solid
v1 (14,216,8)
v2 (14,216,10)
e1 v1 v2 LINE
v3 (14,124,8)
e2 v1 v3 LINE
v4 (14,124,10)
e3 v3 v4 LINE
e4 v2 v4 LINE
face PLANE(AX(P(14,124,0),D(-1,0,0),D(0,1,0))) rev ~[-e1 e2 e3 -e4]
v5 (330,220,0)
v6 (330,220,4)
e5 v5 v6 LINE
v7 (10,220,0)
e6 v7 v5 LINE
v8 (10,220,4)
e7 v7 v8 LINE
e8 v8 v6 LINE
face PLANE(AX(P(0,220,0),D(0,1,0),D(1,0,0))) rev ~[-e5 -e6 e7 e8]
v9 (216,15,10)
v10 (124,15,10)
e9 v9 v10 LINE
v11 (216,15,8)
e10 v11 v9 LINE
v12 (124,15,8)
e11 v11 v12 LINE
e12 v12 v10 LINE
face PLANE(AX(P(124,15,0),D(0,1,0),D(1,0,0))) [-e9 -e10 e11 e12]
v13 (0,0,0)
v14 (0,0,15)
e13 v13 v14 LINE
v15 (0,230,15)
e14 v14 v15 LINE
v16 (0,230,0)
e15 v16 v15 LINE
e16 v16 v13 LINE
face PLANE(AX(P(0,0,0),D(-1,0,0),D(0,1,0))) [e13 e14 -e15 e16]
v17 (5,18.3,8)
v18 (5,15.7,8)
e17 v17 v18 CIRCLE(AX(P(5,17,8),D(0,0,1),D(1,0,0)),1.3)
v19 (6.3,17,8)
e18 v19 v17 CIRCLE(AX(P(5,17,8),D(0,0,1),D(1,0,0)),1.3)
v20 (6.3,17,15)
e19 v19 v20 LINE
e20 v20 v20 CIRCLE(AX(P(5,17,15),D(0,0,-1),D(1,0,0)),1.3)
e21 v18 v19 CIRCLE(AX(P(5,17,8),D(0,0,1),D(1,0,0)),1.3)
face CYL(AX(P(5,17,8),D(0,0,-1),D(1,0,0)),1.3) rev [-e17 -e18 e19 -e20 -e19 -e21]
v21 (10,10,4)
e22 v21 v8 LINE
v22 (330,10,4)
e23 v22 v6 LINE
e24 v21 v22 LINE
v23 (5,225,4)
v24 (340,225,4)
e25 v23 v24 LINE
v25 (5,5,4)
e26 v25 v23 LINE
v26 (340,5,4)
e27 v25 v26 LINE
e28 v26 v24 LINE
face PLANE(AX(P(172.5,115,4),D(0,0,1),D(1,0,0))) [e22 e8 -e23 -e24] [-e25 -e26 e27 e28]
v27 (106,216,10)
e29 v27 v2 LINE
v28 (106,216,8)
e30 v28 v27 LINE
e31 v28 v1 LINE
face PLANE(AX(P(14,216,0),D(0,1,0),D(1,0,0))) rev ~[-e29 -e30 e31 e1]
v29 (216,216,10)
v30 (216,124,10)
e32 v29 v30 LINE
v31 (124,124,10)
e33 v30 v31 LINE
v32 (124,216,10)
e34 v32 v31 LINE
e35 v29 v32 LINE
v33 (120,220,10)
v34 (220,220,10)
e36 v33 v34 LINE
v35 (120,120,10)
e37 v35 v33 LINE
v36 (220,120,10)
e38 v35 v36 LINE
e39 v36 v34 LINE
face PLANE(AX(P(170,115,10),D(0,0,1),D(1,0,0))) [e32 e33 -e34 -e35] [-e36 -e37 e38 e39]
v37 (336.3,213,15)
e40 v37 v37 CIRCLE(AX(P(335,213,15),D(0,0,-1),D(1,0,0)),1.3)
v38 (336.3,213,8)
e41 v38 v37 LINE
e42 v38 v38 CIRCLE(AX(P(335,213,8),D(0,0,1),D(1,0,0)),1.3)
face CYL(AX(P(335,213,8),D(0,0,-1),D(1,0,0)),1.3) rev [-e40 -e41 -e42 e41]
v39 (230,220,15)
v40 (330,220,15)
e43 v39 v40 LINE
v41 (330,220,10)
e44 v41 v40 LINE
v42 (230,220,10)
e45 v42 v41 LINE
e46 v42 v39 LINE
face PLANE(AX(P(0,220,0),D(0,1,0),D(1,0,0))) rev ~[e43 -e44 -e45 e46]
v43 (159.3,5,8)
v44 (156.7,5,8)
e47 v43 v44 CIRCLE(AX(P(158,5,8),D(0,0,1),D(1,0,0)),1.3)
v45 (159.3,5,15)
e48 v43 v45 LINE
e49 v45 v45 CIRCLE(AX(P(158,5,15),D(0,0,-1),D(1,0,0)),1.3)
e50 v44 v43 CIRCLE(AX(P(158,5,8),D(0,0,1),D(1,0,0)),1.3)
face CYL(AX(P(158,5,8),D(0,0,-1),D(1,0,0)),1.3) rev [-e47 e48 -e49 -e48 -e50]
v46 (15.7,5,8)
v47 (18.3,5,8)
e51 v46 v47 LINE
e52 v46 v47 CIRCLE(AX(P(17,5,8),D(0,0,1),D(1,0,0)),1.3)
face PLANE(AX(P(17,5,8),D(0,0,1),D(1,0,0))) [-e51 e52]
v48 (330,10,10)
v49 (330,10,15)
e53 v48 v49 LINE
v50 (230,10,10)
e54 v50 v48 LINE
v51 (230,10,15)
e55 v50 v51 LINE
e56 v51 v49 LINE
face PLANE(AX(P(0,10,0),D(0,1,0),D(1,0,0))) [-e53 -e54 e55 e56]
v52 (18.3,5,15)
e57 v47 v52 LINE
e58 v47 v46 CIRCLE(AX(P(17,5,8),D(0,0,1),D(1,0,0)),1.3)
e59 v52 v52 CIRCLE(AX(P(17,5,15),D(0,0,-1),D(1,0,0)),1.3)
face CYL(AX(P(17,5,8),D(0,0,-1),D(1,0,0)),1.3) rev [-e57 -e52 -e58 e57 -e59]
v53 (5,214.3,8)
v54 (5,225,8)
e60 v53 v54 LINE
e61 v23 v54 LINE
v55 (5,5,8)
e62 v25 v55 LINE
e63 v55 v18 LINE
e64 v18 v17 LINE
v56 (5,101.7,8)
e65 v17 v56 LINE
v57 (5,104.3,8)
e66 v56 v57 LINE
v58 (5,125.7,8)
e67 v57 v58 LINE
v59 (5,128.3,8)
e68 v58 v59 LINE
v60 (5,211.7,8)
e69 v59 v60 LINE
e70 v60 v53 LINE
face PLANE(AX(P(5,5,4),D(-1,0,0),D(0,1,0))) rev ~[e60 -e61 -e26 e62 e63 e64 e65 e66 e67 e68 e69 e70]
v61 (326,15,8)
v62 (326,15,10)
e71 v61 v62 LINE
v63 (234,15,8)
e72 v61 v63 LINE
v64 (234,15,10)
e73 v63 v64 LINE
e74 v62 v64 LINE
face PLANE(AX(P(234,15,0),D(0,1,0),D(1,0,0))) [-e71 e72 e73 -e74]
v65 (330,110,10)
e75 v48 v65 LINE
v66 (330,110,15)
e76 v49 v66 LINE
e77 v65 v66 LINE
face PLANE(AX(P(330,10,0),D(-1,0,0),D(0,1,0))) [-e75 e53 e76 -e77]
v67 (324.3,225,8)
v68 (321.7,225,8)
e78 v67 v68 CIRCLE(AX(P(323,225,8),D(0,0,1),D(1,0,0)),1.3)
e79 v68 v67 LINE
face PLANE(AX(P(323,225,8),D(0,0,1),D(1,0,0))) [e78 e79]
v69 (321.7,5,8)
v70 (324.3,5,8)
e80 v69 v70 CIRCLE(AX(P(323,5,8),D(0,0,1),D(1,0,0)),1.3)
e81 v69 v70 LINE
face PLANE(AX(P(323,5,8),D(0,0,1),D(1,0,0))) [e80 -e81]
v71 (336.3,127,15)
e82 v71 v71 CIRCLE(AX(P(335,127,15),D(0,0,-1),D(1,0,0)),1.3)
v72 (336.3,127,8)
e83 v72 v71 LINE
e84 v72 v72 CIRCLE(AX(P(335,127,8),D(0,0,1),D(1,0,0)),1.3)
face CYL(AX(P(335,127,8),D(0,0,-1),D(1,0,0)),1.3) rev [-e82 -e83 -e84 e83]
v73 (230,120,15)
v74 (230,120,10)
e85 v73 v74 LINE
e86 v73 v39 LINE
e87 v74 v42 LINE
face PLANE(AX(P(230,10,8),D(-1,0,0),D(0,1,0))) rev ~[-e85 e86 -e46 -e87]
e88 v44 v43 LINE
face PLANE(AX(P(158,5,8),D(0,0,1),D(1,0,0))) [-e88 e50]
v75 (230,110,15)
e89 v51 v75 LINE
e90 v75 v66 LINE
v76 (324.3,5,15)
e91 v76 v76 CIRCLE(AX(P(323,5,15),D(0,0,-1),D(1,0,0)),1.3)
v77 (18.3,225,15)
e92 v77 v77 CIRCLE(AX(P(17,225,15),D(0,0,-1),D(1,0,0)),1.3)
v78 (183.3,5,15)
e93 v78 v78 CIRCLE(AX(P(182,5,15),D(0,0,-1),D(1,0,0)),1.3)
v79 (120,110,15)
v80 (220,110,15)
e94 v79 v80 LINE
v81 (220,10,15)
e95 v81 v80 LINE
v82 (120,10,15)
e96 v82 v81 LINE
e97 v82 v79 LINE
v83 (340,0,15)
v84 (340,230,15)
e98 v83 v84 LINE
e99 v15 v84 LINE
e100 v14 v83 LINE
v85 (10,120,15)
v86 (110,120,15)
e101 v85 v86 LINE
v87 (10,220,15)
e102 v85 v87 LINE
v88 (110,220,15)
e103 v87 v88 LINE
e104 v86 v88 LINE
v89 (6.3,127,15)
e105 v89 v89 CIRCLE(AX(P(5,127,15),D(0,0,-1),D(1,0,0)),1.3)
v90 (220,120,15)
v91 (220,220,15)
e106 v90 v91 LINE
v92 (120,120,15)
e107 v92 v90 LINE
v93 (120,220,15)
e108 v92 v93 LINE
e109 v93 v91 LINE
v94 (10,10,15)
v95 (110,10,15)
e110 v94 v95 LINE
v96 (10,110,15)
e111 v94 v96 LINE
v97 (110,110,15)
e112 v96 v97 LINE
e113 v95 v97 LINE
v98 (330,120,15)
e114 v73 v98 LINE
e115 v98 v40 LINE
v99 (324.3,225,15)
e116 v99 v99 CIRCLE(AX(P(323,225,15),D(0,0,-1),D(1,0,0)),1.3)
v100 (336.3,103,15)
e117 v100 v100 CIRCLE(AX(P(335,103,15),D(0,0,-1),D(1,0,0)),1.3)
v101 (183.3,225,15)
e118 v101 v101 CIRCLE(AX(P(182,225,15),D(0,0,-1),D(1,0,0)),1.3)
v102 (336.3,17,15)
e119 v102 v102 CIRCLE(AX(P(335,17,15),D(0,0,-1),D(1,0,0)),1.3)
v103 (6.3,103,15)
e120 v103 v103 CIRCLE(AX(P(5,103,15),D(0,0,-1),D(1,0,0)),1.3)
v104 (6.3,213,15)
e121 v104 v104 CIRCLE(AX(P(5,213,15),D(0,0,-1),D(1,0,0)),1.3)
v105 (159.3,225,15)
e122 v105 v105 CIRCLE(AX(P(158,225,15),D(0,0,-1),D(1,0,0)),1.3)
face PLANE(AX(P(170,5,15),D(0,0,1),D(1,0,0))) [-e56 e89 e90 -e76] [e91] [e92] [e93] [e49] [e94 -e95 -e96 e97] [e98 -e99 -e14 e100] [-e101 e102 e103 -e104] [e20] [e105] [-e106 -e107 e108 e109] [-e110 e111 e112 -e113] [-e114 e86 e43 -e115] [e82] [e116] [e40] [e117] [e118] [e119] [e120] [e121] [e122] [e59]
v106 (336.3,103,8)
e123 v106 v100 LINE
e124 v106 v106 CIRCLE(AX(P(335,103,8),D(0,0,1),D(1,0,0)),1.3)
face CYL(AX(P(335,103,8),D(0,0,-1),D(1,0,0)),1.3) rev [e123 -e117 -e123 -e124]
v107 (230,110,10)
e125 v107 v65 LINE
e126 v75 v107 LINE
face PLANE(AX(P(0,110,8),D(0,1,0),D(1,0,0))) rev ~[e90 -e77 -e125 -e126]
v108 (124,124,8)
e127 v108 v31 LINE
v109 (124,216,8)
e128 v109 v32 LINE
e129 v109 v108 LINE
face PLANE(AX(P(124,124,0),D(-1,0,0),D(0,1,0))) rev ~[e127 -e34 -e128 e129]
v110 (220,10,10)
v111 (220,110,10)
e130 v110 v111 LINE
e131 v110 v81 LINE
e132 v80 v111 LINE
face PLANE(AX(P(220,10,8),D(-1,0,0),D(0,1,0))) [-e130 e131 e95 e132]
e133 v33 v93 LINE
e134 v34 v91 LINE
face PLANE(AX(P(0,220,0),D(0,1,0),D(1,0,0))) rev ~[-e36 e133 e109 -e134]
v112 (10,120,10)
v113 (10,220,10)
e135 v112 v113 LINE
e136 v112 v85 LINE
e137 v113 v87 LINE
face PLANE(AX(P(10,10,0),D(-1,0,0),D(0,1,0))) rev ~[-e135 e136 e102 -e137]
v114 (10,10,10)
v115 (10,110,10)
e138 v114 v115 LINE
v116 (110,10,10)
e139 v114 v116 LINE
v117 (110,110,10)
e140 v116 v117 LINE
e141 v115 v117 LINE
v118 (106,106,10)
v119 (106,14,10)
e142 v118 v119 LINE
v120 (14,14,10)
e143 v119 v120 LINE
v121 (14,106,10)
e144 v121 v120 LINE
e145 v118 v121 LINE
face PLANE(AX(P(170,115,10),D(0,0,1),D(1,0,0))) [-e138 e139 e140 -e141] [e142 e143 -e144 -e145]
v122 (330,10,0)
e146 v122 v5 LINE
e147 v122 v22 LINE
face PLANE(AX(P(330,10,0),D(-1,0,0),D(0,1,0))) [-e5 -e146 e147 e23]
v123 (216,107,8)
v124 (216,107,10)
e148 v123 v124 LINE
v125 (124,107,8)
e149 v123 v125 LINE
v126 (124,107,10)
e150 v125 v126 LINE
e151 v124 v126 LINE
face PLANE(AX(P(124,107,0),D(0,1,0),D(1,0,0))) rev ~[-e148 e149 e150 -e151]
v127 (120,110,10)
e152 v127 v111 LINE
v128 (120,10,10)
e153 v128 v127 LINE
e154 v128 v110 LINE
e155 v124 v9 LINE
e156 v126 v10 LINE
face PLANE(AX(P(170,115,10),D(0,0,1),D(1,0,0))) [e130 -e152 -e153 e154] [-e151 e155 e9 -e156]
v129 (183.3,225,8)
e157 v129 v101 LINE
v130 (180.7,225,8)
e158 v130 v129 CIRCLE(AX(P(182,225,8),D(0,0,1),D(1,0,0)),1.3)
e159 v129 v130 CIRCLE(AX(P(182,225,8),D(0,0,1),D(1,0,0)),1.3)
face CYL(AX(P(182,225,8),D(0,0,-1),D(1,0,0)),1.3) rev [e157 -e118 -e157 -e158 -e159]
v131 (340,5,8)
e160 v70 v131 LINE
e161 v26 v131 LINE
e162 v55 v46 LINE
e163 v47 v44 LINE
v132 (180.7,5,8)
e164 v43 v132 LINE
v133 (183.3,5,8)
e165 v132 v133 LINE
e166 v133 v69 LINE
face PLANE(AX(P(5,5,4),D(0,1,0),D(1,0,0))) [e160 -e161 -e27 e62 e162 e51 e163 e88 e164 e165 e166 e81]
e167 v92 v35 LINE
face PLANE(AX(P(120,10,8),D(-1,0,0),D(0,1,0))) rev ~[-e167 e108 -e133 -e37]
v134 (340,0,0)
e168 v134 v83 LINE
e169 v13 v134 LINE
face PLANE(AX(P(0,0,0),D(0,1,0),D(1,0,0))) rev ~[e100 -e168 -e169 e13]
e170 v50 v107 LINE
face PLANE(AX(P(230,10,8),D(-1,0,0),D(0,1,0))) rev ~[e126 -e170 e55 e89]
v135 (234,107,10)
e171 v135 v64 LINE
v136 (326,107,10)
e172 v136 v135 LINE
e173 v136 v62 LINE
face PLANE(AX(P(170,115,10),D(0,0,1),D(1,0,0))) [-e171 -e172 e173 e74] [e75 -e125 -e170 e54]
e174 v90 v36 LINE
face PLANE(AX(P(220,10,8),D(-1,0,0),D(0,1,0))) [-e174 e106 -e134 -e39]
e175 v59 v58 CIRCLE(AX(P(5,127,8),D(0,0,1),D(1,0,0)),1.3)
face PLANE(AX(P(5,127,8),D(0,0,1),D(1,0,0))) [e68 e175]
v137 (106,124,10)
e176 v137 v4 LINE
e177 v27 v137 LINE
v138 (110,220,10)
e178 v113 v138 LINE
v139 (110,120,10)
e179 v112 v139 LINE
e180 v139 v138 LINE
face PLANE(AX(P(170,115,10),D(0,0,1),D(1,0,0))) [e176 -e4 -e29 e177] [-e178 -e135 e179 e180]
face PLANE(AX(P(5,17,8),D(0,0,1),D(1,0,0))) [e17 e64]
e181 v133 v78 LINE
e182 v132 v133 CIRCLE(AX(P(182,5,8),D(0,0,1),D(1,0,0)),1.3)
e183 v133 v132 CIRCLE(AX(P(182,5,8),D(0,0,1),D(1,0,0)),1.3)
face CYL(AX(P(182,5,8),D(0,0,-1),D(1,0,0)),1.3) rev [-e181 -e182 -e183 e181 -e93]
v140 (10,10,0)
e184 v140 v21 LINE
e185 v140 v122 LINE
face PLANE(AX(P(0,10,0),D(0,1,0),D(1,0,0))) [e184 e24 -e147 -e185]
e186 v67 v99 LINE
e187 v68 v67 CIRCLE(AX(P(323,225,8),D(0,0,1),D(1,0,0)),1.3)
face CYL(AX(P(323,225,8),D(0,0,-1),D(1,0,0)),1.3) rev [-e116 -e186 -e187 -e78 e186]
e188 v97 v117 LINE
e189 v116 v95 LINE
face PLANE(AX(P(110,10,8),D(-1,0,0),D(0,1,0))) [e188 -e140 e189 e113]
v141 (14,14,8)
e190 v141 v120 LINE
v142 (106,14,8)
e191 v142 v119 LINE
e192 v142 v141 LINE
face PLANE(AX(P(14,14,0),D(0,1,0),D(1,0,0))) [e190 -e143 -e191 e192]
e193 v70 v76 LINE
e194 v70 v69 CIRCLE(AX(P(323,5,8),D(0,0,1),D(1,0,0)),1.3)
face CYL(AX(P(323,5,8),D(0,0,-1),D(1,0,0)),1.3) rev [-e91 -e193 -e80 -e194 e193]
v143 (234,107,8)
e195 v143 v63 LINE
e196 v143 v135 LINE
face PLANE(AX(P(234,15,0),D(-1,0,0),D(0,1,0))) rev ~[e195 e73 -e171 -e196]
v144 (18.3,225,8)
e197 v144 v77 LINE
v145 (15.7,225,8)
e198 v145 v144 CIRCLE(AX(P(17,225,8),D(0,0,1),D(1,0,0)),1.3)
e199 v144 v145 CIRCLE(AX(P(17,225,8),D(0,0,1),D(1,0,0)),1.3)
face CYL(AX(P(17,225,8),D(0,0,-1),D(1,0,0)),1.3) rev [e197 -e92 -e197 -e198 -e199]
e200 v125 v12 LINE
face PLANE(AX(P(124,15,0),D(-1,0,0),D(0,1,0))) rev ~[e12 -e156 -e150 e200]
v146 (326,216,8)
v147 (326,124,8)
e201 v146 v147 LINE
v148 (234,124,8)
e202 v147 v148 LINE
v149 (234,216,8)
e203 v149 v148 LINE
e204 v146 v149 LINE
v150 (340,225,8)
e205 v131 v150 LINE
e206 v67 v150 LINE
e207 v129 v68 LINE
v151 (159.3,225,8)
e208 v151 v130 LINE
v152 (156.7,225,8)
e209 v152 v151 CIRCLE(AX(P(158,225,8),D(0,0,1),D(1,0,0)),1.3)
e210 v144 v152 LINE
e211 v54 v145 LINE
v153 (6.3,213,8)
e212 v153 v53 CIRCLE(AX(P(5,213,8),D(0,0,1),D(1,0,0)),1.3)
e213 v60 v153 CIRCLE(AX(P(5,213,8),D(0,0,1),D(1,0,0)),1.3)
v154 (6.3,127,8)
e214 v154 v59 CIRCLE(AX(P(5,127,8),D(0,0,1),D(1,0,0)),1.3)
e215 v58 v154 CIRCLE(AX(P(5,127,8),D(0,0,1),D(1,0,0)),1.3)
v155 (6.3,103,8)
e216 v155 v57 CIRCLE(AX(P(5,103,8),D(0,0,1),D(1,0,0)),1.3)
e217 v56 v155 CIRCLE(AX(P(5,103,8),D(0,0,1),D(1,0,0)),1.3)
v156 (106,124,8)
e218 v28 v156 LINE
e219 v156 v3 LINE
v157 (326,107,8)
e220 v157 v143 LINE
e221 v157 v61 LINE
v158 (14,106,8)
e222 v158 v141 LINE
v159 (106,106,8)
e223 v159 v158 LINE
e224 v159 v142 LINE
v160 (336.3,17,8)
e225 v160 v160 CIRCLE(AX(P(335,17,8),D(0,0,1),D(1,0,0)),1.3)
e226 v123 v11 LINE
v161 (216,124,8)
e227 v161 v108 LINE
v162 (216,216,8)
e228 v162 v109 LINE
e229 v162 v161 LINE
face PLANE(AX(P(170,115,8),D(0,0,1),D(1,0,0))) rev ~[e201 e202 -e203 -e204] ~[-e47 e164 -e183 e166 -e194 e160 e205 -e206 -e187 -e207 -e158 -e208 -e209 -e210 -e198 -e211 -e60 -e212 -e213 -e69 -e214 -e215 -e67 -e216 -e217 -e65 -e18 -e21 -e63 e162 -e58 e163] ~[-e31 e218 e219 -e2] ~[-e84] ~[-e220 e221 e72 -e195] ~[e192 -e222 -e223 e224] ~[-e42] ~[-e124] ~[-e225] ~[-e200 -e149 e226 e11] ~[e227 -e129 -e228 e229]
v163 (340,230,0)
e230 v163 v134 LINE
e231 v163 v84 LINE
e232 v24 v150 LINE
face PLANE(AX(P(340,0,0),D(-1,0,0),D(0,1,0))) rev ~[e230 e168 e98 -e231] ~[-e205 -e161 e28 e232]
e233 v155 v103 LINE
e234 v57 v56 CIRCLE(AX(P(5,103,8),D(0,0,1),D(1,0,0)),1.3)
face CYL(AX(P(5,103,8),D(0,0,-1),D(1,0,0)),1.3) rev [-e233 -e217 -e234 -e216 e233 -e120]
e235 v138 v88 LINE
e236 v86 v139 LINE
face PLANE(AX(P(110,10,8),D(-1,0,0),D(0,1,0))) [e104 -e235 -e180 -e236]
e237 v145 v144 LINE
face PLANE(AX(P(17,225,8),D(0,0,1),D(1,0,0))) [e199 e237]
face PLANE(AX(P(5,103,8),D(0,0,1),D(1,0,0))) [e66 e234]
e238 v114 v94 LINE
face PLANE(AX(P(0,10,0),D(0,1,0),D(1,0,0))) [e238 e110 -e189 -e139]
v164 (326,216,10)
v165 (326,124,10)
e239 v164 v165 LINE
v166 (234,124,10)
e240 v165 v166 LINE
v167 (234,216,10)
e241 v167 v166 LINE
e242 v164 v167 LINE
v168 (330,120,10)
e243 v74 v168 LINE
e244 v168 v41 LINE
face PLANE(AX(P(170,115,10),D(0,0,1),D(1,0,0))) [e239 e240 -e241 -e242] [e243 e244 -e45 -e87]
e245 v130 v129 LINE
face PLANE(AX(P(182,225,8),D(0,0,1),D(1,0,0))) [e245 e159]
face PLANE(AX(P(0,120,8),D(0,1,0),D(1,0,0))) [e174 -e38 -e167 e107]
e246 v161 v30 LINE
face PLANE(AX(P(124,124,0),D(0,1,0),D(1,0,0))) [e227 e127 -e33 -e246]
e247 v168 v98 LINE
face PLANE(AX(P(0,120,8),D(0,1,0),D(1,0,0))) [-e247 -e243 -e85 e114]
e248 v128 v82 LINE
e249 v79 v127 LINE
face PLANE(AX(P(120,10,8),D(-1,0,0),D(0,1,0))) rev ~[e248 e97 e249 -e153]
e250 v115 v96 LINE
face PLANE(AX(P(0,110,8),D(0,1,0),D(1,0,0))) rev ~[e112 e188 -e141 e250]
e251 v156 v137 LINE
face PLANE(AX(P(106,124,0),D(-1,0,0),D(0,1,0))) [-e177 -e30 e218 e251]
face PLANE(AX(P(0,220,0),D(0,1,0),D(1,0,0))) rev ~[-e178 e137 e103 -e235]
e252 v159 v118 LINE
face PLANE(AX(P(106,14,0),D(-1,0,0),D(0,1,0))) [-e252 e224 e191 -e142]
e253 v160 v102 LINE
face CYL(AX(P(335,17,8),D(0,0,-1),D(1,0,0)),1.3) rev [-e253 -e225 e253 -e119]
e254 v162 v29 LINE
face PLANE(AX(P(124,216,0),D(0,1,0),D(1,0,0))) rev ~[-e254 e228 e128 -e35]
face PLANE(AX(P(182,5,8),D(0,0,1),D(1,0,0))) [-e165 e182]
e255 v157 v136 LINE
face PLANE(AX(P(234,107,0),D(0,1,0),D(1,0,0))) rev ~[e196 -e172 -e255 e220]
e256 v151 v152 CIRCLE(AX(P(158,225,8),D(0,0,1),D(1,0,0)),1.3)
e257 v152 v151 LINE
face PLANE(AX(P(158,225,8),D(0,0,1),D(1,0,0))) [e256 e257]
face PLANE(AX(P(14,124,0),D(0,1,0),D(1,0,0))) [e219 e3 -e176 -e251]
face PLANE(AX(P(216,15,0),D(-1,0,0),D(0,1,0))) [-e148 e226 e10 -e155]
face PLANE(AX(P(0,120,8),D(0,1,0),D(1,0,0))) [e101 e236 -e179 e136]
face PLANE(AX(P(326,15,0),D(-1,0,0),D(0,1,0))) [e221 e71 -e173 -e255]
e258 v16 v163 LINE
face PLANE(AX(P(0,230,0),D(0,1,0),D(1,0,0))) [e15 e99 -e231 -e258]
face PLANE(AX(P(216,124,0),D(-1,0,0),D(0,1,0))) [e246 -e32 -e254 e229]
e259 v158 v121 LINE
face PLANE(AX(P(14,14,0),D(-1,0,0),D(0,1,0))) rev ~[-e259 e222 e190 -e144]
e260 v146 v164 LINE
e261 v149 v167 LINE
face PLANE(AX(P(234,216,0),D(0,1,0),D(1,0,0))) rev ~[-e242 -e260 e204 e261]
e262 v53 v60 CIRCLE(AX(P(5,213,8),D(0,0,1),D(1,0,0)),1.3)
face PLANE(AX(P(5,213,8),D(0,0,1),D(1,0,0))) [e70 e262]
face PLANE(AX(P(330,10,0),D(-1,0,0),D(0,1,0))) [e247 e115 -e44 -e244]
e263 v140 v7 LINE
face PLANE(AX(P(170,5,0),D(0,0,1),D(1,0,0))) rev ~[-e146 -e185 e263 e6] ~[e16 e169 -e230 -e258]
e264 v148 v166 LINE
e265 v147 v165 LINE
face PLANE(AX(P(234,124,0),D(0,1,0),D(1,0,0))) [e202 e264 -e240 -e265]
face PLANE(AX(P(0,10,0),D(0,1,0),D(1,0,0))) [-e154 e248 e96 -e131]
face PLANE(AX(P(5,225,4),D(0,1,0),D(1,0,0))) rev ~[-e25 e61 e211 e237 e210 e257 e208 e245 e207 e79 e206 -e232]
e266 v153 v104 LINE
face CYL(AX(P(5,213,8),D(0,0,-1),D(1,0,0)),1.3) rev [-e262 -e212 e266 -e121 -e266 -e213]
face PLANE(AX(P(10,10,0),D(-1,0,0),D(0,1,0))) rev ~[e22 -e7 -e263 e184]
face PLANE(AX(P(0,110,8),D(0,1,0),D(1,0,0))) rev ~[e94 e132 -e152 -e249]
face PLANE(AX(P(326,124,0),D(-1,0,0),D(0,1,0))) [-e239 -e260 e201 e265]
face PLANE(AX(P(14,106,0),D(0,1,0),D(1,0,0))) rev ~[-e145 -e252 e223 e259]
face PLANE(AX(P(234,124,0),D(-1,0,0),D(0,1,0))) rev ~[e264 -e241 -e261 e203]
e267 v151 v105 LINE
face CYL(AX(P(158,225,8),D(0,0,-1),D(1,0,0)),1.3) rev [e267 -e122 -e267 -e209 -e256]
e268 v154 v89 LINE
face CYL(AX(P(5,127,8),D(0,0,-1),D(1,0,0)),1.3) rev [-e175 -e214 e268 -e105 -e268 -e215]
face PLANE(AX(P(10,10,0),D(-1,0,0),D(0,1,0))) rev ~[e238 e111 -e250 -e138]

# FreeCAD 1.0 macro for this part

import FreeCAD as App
import Part
import Sketcher

V = App.Vector


def add_polygon(sketch, points):
    """Adds a closed chain of lines whose ends are joined by coincident constraints."""
    first, n = sketch.GeometryCount, len(points)
    for a, b in zip(points, points[1:] + points[:1]):
        sketch.addGeometry(Part.LineSegment(App.Vector(*a, 0), App.Vector(*b, 0)), False)
    for i in range(n):
        sketch.addConstraint(Sketcher.Constraint("Coincident", first + i, 2, first + (i + 1) % n, 1))

doc = App.newDocument("Part")
body = doc.addObject("PartDesign::Body", "Body")

sketch1 = body.newObject("Sketcher::SketchObject", "Sketch")
sketch1.AttachmentSupport = (doc.getObject("XY_Plane"), [""])
sketch1.MapMode = "FlatFace"
sketch1.AttachmentOffset = App.Placement(V(0, 0, 8), App.Rotation())
sketch1.addGeometry(Part.Circle(V(5, 103, 0), V(0, 0, 1), 1.3), False)
sketch1.addConstraint([
    Sketcher.Constraint("Diameter", 0, 2.6),
    Sketcher.Constraint("DistanceX", -1, 1, 0, 3, 5.0),
    Sketcher.Constraint("DistanceY", -1, 1, 0, 3, 103.0),
])
pad1 = body.newObject("PartDesign::Pad", "Pad")
pad1.Profile = sketch1
pad1.Length = 146
body2 = doc.addObject("PartDesign::Body", "Body001")

sketch2 = body2.newObject("Sketcher::SketchObject", "Sketch001")
sketch2.AttachmentSupport = (doc.getObject("XY_Plane001"), [""])
sketch2.MapMode = "FlatFace"
sketch2.AttachmentOffset = App.Placement(V(0, 0, 8), App.Rotation())
sketch2.addGeometry(Part.Circle(V(5, 127, 0), V(0, 0, 1), 1.3), False)
sketch2.addConstraint([
    Sketcher.Constraint("Diameter", 0, 2.6),
    Sketcher.Constraint("DistanceX", -1, 1, 0, 3, 5.0),
    Sketcher.Constraint("DistanceY", -1, 1, 0, 3, 127.0),
])
pad2 = body2.newObject("PartDesign::Pad", "Pad001")
pad2.Profile = sketch2
pad2.Length = 146
body3 = doc.addObject("PartDesign::Body", "Body002")

sketch3 = body3.newObject("Sketcher::SketchObject", "Sketch002")
sketch3.AttachmentSupport = (doc.getObject("XY_Plane002"), [""])
sketch3.MapMode = "FlatFace"
sketch3.AttachmentOffset = App.Placement(V(0, 0, 8), App.Rotation())
sketch3.addGeometry(Part.Circle(V(5, 213, 0), V(0, 0, 1), 1.3), False)
sketch3.addConstraint([
    Sketcher.Constraint("Diameter", 0, 2.6),
    Sketcher.Constraint("DistanceX", -1, 1, 0, 3, 5.0),
    Sketcher.Constraint("DistanceY", -1, 1, 0, 3, 213.0),
])
pad3 = body3.newObject("PartDesign::Pad", "Pad002")
pad3.Profile = sketch3
pad3.Length = 146
body4 = doc.addObject("PartDesign::Body", "Body003")

sketch4 = body4.newObject("Sketcher::SketchObject", "Sketch003")
sketch4.AttachmentSupport = (doc.getObject("XY_Plane003"), [""])
sketch4.MapMode = "FlatFace"
sketch4.AttachmentOffset = App.Placement(V(0, 0, 8), App.Rotation())
sketch4.addGeometry(Part.Circle(V(17, 225, 0), V(0, 0, 1), 1.3), False)
sketch4.addConstraint([
    Sketcher.Constraint("Diameter", 0, 2.6),
    Sketcher.Constraint("DistanceX", -1, 1, 0, 3, 17.0),
    Sketcher.Constraint("DistanceY", -1, 1, 0, 3, 225.0),
])
pad4 = body4.newObject("PartDesign::Pad", "Pad003")
pad4.Profile = sketch4
pad4.Length = 146
body5 = doc.addObject("PartDesign::Body", "Body004")

sketch5 = body5.newObject("Sketcher::SketchObject", "Sketch004")
sketch5.AttachmentSupport = (doc.getObject("XY_Plane004"), [""])
sketch5.MapMode = "FlatFace"
sketch5.AttachmentOffset = App.Placement(V(0, 0, 8), App.Rotation())
sketch5.addGeometry(Part.Circle(V(158, 225, 0), V(0, 0, 1), 1.3), False)
sketch5.addConstraint([
    Sketcher.Constraint("Diameter", 0, 2.6),
    Sketcher.Constraint("DistanceX", -1, 1, 0, 3, 158.0),
    Sketcher.Constraint("DistanceY", -1, 1, 0, 3, 225.0),
])
pad5 = body5.newObject("PartDesign::Pad", "Pad004")
pad5.Profile = sketch5
pad5.Length = 146
body6 = doc.addObject("PartDesign::Body", "Body005")

sketch6 = body6.newObject("Sketcher::SketchObject", "Sketch005")
sketch6.AttachmentSupport = (doc.getObject("XY_Plane005"), [""])
sketch6.MapMode = "FlatFace"
sketch6.AttachmentOffset = App.Placement(V(0, 0, 8), App.Rotation())
sketch6.addGeometry(Part.Circle(V(182, 225, 0), V(0, 0, 1), 1.3), False)
sketch6.addConstraint([
    Sketcher.Constraint("Diameter", 0, 2.6),
    Sketcher.Constraint("DistanceX", -1, 1, 0, 3, 182.0),
    Sketcher.Constraint("DistanceY", -1, 1, 0, 3, 225.0),
])
pad6 = body6.newObject("PartDesign::Pad", "Pad005")
pad6.Profile = sketch6
pad6.Length = 146
body7 = doc.addObject("PartDesign::Body", "Body006")

sketch7 = body7.newObject("Sketcher::SketchObject", "Sketch006")
sketch7.AttachmentSupport = (doc.getObject("XY_Plane006"), [""])
sketch7.MapMode = "FlatFace"
sketch7.AttachmentOffset = App.Placement(V(0, 0, 8), App.Rotation())
sketch7.addGeometry(Part.Circle(V(323, 225, 0), V(0, 0, 1), 1.3), False)
sketch7.addConstraint([
    Sketcher.Constraint("Diameter", 0, 2.6),
    Sketcher.Constraint("DistanceX", -1, 1, 0, 3, 323.0),
    Sketcher.Constraint("DistanceY", -1, 1, 0, 3, 225.0),
])
pad7 = body7.newObject("PartDesign::Pad", "Pad006")
pad7.Profile = sketch7
pad7.Length = 146
body8 = doc.addObject("PartDesign::Body", "Body007")

sketch8 = body8.newObject("Sketcher::SketchObject", "Sketch007")
sketch8.AttachmentSupport = (doc.getObject("XY_Plane007"), [""])
sketch8.MapMode = "FlatFace"
sketch8.AttachmentOffset = App.Placement(V(0, 0, 8), App.Rotation())
sketch8.addGeometry(Part.Circle(V(335, 213, 0), V(0, 0, 1), 1.3), False)
sketch8.addConstraint([
    Sketcher.Constraint("Diameter", 0, 2.6),
    Sketcher.Constraint("DistanceX", -1, 1, 0, 3, 335.0),
    Sketcher.Constraint("DistanceY", -1, 1, 0, 3, 213.0),
])
pad8 = body8.newObject("PartDesign::Pad", "Pad007")
pad8.Profile = sketch8
pad8.Length = 146
body9 = doc.addObject("PartDesign::Body", "Body008")

sketch9 = body9.newObject("Sketcher::SketchObject", "Sketch008")
sketch9.AttachmentSupport = (doc.getObject("XY_Plane008"), [""])
sketch9.MapMode = "FlatFace"
sketch9.AttachmentOffset = App.Placement(V(0, 0, 8), App.Rotation())
sketch9.addGeometry(Part.Circle(V(335, 127, 0), V(0, 0, 1), 1.3), False)
sketch9.addConstraint([
    Sketcher.Constraint("Diameter", 0, 2.6),
    Sketcher.Constraint("DistanceX", -1, 1, 0, 3, 335.0),
    Sketcher.Constraint("DistanceY", -1, 1, 0, 3, 127.0),
])
pad9 = body9.newObject("PartDesign::Pad", "Pad008")
pad9.Profile = sketch9
pad9.Length = 146
body10 = doc.addObject("PartDesign::Body", "Body009")

sketch10 = body10.newObject("Sketcher::SketchObject", "Sketch009")
sketch10.AttachmentSupport = (doc.getObject("XY_Plane009"), [""])
sketch10.MapMode = "FlatFace"
sketch10.AttachmentOffset = App.Placement(V(0, 0, 8), App.Rotation())
sketch10.addGeometry(Part.Circle(V(335, 103, 0), V(0, 0, 1), 1.3), False)
sketch10.addConstraint([
    Sketcher.Constraint("Diameter", 0, 2.6),
    Sketcher.Constraint("DistanceX", -1, 1, 0, 3, 335.0),
    Sketcher.Constraint("DistanceY", -1, 1, 0, 3, 103.0),
])
pad10 = body10.newObject("PartDesign::Pad", "Pad009")
pad10.Profile = sketch10
pad10.Length = 146
body11 = doc.addObject("PartDesign::Body", "Body010")

sketch11 = body11.newObject("Sketcher::SketchObject", "Sketch010")
sketch11.AttachmentSupport = (doc.getObject("XY_Plane010"), [""])
sketch11.MapMode = "FlatFace"
sketch11.AttachmentOffset = App.Placement(V(0, 0, 8), App.Rotation())
sketch11.addGeometry(Part.Circle(V(335, 17, 0), V(0, 0, 1), 1.3), False)
sketch11.addConstraint([
    Sketcher.Constraint("Diameter", 0, 2.6),
    Sketcher.Constraint("DistanceX", -1, 1, 0, 3, 335.0),
    Sketcher.Constraint("DistanceY", -1, 1, 0, 3, 17.0),
])
pad11 = body11.newObject("PartDesign::Pad", "Pad010")
pad11.Profile = sketch11
pad11.Length = 146
body12 = doc.addObject("PartDesign::Body", "Body011")

sketch12 = body12.newObject("Sketcher::SketchObject", "Sketch011")
sketch12.AttachmentSupport = (doc.getObject("XY_Plane011"), [""])
sketch12.MapMode = "FlatFace"
sketch12.AttachmentOffset = App.Placement(V(0, 0, 8), App.Rotation())
sketch12.addGeometry(Part.Circle(V(323, 5, 0), V(0, 0, 1), 1.3), False)
sketch12.addConstraint([
    Sketcher.Constraint("Diameter", 0, 2.6),
    Sketcher.Constraint("DistanceX", -1, 1, 0, 3, 323.0),
    Sketcher.Constraint("DistanceY", -1, 1, 0, 3, 5.0),
])
pad12 = body12.newObject("PartDesign::Pad", "Pad011")
pad12.Profile = sketch12
pad12.Length = 146
body13 = doc.addObject("PartDesign::Body", "Body012")

sketch13 = body13.newObject("Sketcher::SketchObject", "Sketch012")
sketch13.AttachmentSupport = (doc.getObject("XY_Plane012"), [""])
sketch13.MapMode = "FlatFace"
sketch13.AttachmentOffset = App.Placement(V(0, 0, 8), App.Rotation())
sketch13.addGeometry(Part.Circle(V(182, 5, 0), V(0, 0, 1), 1.3), False)
sketch13.addConstraint([
    Sketcher.Constraint("Diameter", 0, 2.6),
    Sketcher.Constraint("DistanceX", -1, 1, 0, 3, 182.0),
    Sketcher.Constraint("DistanceY", -1, 1, 0, 3, 5.0),
])
pad13 = body13.newObject("PartDesign::Pad", "Pad012")
pad13.Profile = sketch13
pad13.Length = 146
body14 = doc.addObject("PartDesign::Body", "Body013")

sketch14 = body14.newObject("Sketcher::SketchObject", "Sketch013")
sketch14.AttachmentSupport = (doc.getObject("XY_Plane013"), [""])
sketch14.MapMode = "FlatFace"
sketch14.AttachmentOffset = App.Placement(V(0, 0, 8), App.Rotation())
sketch14.addGeometry(Part.Circle(V(158, 5, 0), V(0, 0, 1), 1.3), False)
sketch14.addConstraint([
    Sketcher.Constraint("Diameter", 0, 2.6),
    Sketcher.Constraint("DistanceX", -1, 1, 0, 3, 158.0),
    Sketcher.Constraint("DistanceY", -1, 1, 0, 3, 5.0),
])
pad14 = body14.newObject("PartDesign::Pad", "Pad013")
pad14.Profile = sketch14
pad14.Length = 146
body15 = doc.addObject("PartDesign::Body", "Body014")

sketch15 = body15.newObject("Sketcher::SketchObject", "Sketch014")
sketch15.AttachmentSupport = (doc.getObject("XY_Plane014"), [""])
sketch15.MapMode = "FlatFace"
sketch15.AttachmentOffset = App.Placement(V(0, 0, 8), App.Rotation())
sketch15.addGeometry(Part.Circle(V(17, 5, 0), V(0, 0, 1), 1.3), False)
sketch15.addConstraint([
    Sketcher.Constraint("Diameter", 0, 2.6),
    Sketcher.Constraint("DistanceX", -1, 1, 0, 3, 17.0),
    Sketcher.Constraint("DistanceY", -1, 1, 0, 3, 5.0),
])
pad15 = body15.newObject("PartDesign::Pad", "Pad014")
pad15.Profile = sketch15
pad15.Length = 146
body16 = doc.addObject("PartDesign::Body", "Body015")

sketch16 = body16.newObject("Sketcher::SketchObject", "Sketch015")
sketch16.AttachmentSupport = (doc.getObject("XY_Plane015"), [""])
sketch16.MapMode = "FlatFace"
sketch16.AttachmentOffset = App.Placement(V(0, 0, 8), App.Rotation())
sketch16.addGeometry(Part.Circle(V(5, 17, 0), V(0, 0, 1), 1.3), False)
sketch16.addConstraint([
    Sketcher.Constraint("Diameter", 0, 2.6),
    Sketcher.Constraint("DistanceX", -1, 1, 0, 3, 5.0),
    Sketcher.Constraint("DistanceY", -1, 1, 0, 3, 17.0),
])
pad16 = body16.newObject("PartDesign::Pad", "Pad015")
pad16.Profile = sketch16
pad16.Length = 146
body17 = doc.addObject("PartDesign::Body", "Body016")

sketch17 = body17.newObject("Sketcher::SketchObject", "Sketch016")
sketch17.AttachmentSupport = (doc.getObject("XY_Plane016"), [""])
sketch17.MapMode = "FlatFace"
add_polygon(sketch17, [(14, 216), (14, 124), (106, 124), (106, 216)])
sketch17.addConstraint([
    Sketcher.Constraint("Vertical", 0),
    Sketcher.Constraint("Horizontal", 1),
    Sketcher.Constraint("Vertical", 2),
    Sketcher.Constraint("Horizontal", 3),
    Sketcher.Constraint("Equal", 3, 0),
    Sketcher.Constraint("DistanceX", 1, 1, 1, 2, 92.0),
    Sketcher.Constraint("DistanceX", -1, 1, 0, 2, 14.0),
    Sketcher.Constraint("DistanceY", -1, 1, 0, 2, 124.0),
])
pad17 = body17.newObject("PartDesign::Pad", "Pad016")
pad17.Profile = sketch17
pad17.Length = 24
body18 = doc.addObject("PartDesign::Body", "Body017")

sketch18 = body18.newObject("Sketcher::SketchObject", "Sketch017")
sketch18.AttachmentSupport = (doc.getObject("XY_Plane017"), [""])
sketch18.MapMode = "FlatFace"
add_polygon(sketch18, [(124, 216), (124, 124), (216, 124), (216, 216)])
sketch18.addConstraint([
    Sketcher.Constraint("Vertical", 0),
    Sketcher.Constraint("Horizontal", 1),
    Sketcher.Constraint("Vertical", 2),
    Sketcher.Constraint("Horizontal", 3),
    Sketcher.Constraint("Equal", 3, 0),
    Sketcher.Constraint("DistanceX", 1, 1, 1, 2, 92.0),
    Sketcher.Constraint("DistanceX", -1, 1, 0, 2, 124.0),
    Sketcher.Constraint("DistanceY", -1, 1, 0, 2, 124.0),
])
pad18 = body18.newObject("PartDesign::Pad", "Pad017")
pad18.Profile = sketch18
pad18.Length = 24
body19 = doc.addObject("PartDesign::Body", "Body018")

sketch19 = body19.newObject("Sketcher::SketchObject", "Sketch018")
sketch19.AttachmentSupport = (doc.getObject("XY_Plane018"), [""])
sketch19.MapMode = "FlatFace"
add_polygon(sketch19, [(234, 216), (234, 124), (326, 124), (326, 216)])
sketch19.addConstraint([
    Sketcher.Constraint("Vertical", 0),
    Sketcher.Constraint("Horizontal", 1),
    Sketcher.Constraint("Vertical", 2),
    Sketcher.Constraint("Horizontal", 3),
    Sketcher.Constraint("Equal", 3, 0),
    Sketcher.Constraint("DistanceX", 1, 1, 1, 2, 92.0),
    Sketcher.Constraint("DistanceX", -1, 1, 0, 2, 234.0),
    Sketcher.Constraint("DistanceY", -1, 1, 0, 2, 124.0),
])
pad19 = body19.newObject("PartDesign::Pad", "Pad018")
pad19.Profile = sketch19
pad19.Length = 24
body20 = doc.addObject("PartDesign::Body", "Body019")

sketch20 = body20.newObject("Sketcher::SketchObject", "Sketch019")
sketch20.AttachmentSupport = (doc.getObject("XY_Plane019"), [""])
sketch20.MapMode = "FlatFace"
add_polygon(sketch20, [(234, 107), (234, 15), (326, 15), (326, 107)])
sketch20.addConstraint([
    Sketcher.Constraint("Vertical", 0),
    Sketcher.Constraint("Horizontal", 1),
    Sketcher.Constraint("Vertical", 2),
    Sketcher.Constraint("Horizontal", 3),
    Sketcher.Constraint("Equal", 3, 0),
    Sketcher.Constraint("DistanceX", 1, 1, 1, 2, 92.0),
    Sketcher.Constraint("DistanceX", -1, 1, 0, 2, 234.0),
    Sketcher.Constraint("DistanceY", -1, 1, 0, 2, 15.0),
])
pad20 = body20.newObject("PartDesign::Pad", "Pad019")
pad20.Profile = sketch20
pad20.Length = 24
body21 = doc.addObject("PartDesign::Body", "Body020")

sketch21 = body21.newObject("Sketcher::SketchObject", "Sketch020")
sketch21.AttachmentSupport = (doc.getObject("XY_Plane020"), [""])
sketch21.MapMode = "FlatFace"
add_polygon(sketch21, [(124, 107), (124, 15), (216, 15), (216, 107)])
sketch21.addConstraint([
    Sketcher.Constraint("Vertical", 0),
    Sketcher.Constraint("Horizontal", 1),
    Sketcher.Constraint("Vertical", 2),
    Sketcher.Constraint("Horizontal", 3),
    Sketcher.Constraint("Equal", 3, 0),
    Sketcher.Constraint("DistanceX", 1, 1, 1, 2, 92.0),
    Sketcher.Constraint("DistanceX", -1, 1, 0, 2, 124.0),
    Sketcher.Constraint("DistanceY", -1, 1, 0, 2, 15.0),
])
pad21 = body21.newObject("PartDesign::Pad", "Pad020")
pad21.Profile = sketch21
pad21.Length = 24
body22 = doc.addObject("PartDesign::Body", "Body021")

sketch22 = body22.newObject("Sketcher::SketchObject", "Sketch021")
sketch22.AttachmentSupport = (doc.getObject("XY_Plane021"), [""])
sketch22.MapMode = "FlatFace"
add_polygon(sketch22, [(14, 106), (14, 14), (106, 14), (106, 106)])
sketch22.addConstraint([
    Sketcher.Constraint("Vertical", 0),
    Sketcher.Constraint("Horizontal", 1),
    Sketcher.Constraint("Vertical", 2),
    Sketcher.Constraint("Horizontal", 3),
    Sketcher.Constraint("Equal", 3, 0),
    Sketcher.Constraint("DistanceX", 1, 1, 1, 2, 92.0),
    Sketcher.Constraint("DistanceX", -1, 1, 0, 2, 14.0),
    Sketcher.Constraint("DistanceY", -1, 1, 0, 2, 14.0),
])
pad22 = body22.newObject("PartDesign::Pad", "Pad021")
pad22.Profile = sketch22
pad22.Length = 24
body23 = doc.addObject("PartDesign::Body", "Body022")

sketch23 = body23.newObject("Sketcher::SketchObject", "Sketch022")
sketch23.AttachmentSupport = (doc.getObject("XY_Plane022"), [""])
sketch23.MapMode = "FlatFace"
sketch23.AttachmentOffset = App.Placement(V(0, 0, 8), App.Rotation())
add_polygon(sketch23, [(10, 220), (10, 10), (330, 10), (330, 220)])
sketch23.addConstraint([
    Sketcher.Constraint("Vertical", 0),
    Sketcher.Constraint("Horizontal", 1),
    Sketcher.Constraint("Vertical", 2),
    Sketcher.Constraint("Horizontal", 3),
    Sketcher.Constraint("DistanceX", 1, 1, 1, 2, 320.0),
    Sketcher.Constraint("DistanceY", 0, 2, 0, 1, 210.0),
    Sketcher.Constraint("DistanceX", -1, 1, 0, 2, 10.0),
    Sketcher.Constraint("DistanceY", -1, 1, 0, 2, 10.0),
])
pad23 = body23.newObject("PartDesign::Pad", "Pad022")
pad23.Profile = sketch23
pad23.Length = 2
body24 = doc.addObject("PartDesign::Body", "Body023")

sketch24 = body24.newObject("Sketcher::SketchObject", "Sketch023")
sketch24.AttachmentSupport = (doc.getObject("XY_Plane023"), [""])
sketch24.MapMode = "FlatFace"
sketch24.AttachmentOffset = App.Placement(V(0, 0, 4), App.Rotation())
add_polygon(sketch24, [(5, 225), (5, 5), (340, 5), (340, 225)])
sketch24.addConstraint([
    Sketcher.Constraint("Vertical", 0),
    Sketcher.Constraint("Horizontal", 1),
    Sketcher.Constraint("Vertical", 2),
    Sketcher.Constraint("Horizontal", 3),
    Sketcher.Constraint("DistanceX", 1, 1, 1, 2, 335.0),
    Sketcher.Constraint("DistanceY", 0, 2, 0, 1, 220.0),
    Sketcher.Constraint("DistanceX", -1, 1, 0, 2, 5.0),
    Sketcher.Constraint("DistanceY", -1, 1, 0, 2, 5.0),
])
pad24 = body24.newObject("PartDesign::Pad", "Pad023")
pad24.Profile = sketch24
pad24.Length = 4
body25 = doc.addObject("PartDesign::Body", "Body024")

sketch25 = body25.newObject("Sketcher::SketchObject", "Sketch024")
sketch25.AttachmentSupport = (doc.getObject("XY_Plane024"), [""])
sketch25.MapMode = "FlatFace"
sketch25.AttachmentOffset = App.Placement(V(0, 0, 8), App.Rotation())
add_polygon(sketch25, [(220, 220), (220, 10), (230, 10), (230, 220)])
sketch25.addConstraint([
    Sketcher.Constraint("Vertical", 0),
    Sketcher.Constraint("Horizontal", 1),
    Sketcher.Constraint("Vertical", 2),
    Sketcher.Constraint("Horizontal", 3),
    Sketcher.Constraint("DistanceX", 1, 1, 1, 2, 10.0),
    Sketcher.Constraint("DistanceY", 0, 2, 0, 1, 210.0),
    Sketcher.Constraint("DistanceX", -1, 1, 0, 2, 220.0),
    Sketcher.Constraint("DistanceY", -1, 1, 0, 2, 10.0),
])
pad25 = body25.newObject("PartDesign::Pad", "Pad024")
pad25.Profile = sketch25
pad25.Length = 7
body26 = doc.addObject("PartDesign::Body", "Body025")

sketch26 = body26.newObject("Sketcher::SketchObject", "Sketch025")
sketch26.AttachmentSupport = (doc.getObject("XY_Plane025"), [""])
sketch26.MapMode = "FlatFace"
sketch26.AttachmentOffset = App.Placement(V(0, 0, 8), App.Rotation())
add_polygon(sketch26, [(0, 120), (0, 110), (340, 110), (340, 120)])
sketch26.addConstraint([
    Sketcher.Constraint("Vertical", 0),
    Sketcher.Constraint("Horizontal", 1),
    Sketcher.Constraint("Vertical", 2),
    Sketcher.Constraint("Horizontal", 3),
    Sketcher.Constraint("PointOnObject", 0, 2, -2),
    Sketcher.Constraint("DistanceX", 1, 1, 1, 2, 340.0),
    Sketcher.Constraint("DistanceY", 0, 2, 0, 1, 10.0),
    Sketcher.Constraint("DistanceY", -1, 1, 0, 2, 110.0),
])
pad26 = body26.newObject("PartDesign::Pad", "Pad025")
pad26.Profile = sketch26
pad26.Length = 7
body27 = doc.addObject("PartDesign::Body", "Body026")

sketch27 = body27.newObject("Sketcher::SketchObject", "Sketch026")
sketch27.AttachmentSupport = (doc.getObject("XY_Plane026"), [""])
sketch27.MapMode = "FlatFace"
add_polygon(sketch27, [(330, 220), (330, 10), (340, 10), (340, 220)])
sketch27.addConstraint([
    Sketcher.Constraint("Vertical", 0),
    Sketcher.Constraint("Horizontal", 1),
    Sketcher.Constraint("Vertical", 2),
    Sketcher.Constraint("Horizontal", 3),
    Sketcher.Constraint("DistanceX", 1, 1, 1, 2, 10.0),
    Sketcher.Constraint("DistanceY", 0, 2, 0, 1, 210.0),
    Sketcher.Constraint("DistanceX", -1, 1, 0, 2, 330.0),
    Sketcher.Constraint("DistanceY", -1, 1, 0, 2, 10.0),
])
pad27 = body27.newObject("PartDesign::Pad", "Pad026")
pad27.Profile = sketch27
pad27.Length = 15
body28 = doc.addObject("PartDesign::Body", "Body027")

sketch28 = body28.newObject("Sketcher::SketchObject", "Sketch027")
sketch28.AttachmentSupport = (doc.getObject("XY_Plane027"), [""])
sketch28.MapMode = "FlatFace"
add_polygon(sketch28, [(0, 220), (0, 10), (10, 10), (10, 220)])
sketch28.addConstraint([
    Sketcher.Constraint("Vertical", 0),
    Sketcher.Constraint("Horizontal", 1),
    Sketcher.Constraint("Vertical", 2),
    Sketcher.Constraint("Horizontal", 3),
    Sketcher.Constraint("PointOnObject", 0, 2, -2),
    Sketcher.Constraint("DistanceX", 1, 1, 1, 2, 10.0),
    Sketcher.Constraint("DistanceY", 0, 2, 0, 1, 210.0),
    Sketcher.Constraint("DistanceY", -1, 1, 0, 2, 10.0),
])
pad28 = body28.newObject("PartDesign::Pad", "Pad027")
pad28.Profile = sketch28
pad28.Length = 15
body29 = doc.addObject("PartDesign::Body", "Body028")

sketch29 = body29.newObject("Sketcher::SketchObject", "Sketch028")
sketch29.AttachmentSupport = (doc.getObject("XY_Plane028"), [""])
sketch29.MapMode = "FlatFace"
add_polygon(sketch29, [(0, 230), (0, 220), (340, 220), (340, 230)])
sketch29.addConstraint([
    Sketcher.Constraint("Vertical", 0),
    Sketcher.Constraint("Horizontal", 1),
    Sketcher.Constraint("Vertical", 2),
    Sketcher.Constraint("Horizontal", 3),
    Sketcher.Constraint("PointOnObject", 0, 2, -2),
    Sketcher.Constraint("DistanceX", 1, 1, 1, 2, 340.0),
    Sketcher.Constraint("DistanceY", 0, 2, 0, 1, 10.0),
    Sketcher.Constraint("DistanceY", -1, 1, 0, 2, 220.0),
])
pad29 = body29.newObject("PartDesign::Pad", "Pad028")
pad29.Profile = sketch29
pad29.Length = 15
body30 = doc.addObject("PartDesign::Body", "Body029")

sketch30 = body30.newObject("Sketcher::SketchObject", "Sketch029")
sketch30.AttachmentSupport = (doc.getObject("XY_Plane029"), [""])
sketch30.MapMode = "FlatFace"
add_polygon(sketch30, [(0, 10), (0, 0), (340, 0), (340, 10)])
sketch30.addConstraint([
    Sketcher.Constraint("Vertical", 0),
    Sketcher.Constraint("Horizontal", 1),
    Sketcher.Constraint("Vertical", 2),
    Sketcher.Constraint("Horizontal", 3),
    Sketcher.Constraint("Coincident", 0, 2, -1, 1),
    Sketcher.Constraint("DistanceX", 1, 1, 1, 2, 340.0),
    Sketcher.Constraint("DistanceY", 0, 2, 0, 1, 10.0),
])
pad30 = body30.newObject("PartDesign::Pad", "Pad029")
pad30.Profile = sketch30
pad30.Length = 15
body31 = doc.addObject("PartDesign::Body", "Body030")
body31.AllowCompound = True

sketch31 = body31.newObject("Sketcher::SketchObject", "Sketch030")
sketch31.AttachmentSupport = (doc.getObject("XY_Plane030"), [""])
sketch31.MapMode = "FlatFace"
sketch31.AttachmentOffset = App.Placement(V(0, 0, 8), App.Rotation())
add_polygon(sketch31, [(110, 220), (110, 10), (120, 10), (120, 220)])
sketch31.addConstraint([
    Sketcher.Constraint("Vertical", 0),
    Sketcher.Constraint("Horizontal", 1),
    Sketcher.Constraint("Vertical", 2),
    Sketcher.Constraint("Horizontal", 3),
    Sketcher.Constraint("DistanceX", 1, 1, 1, 2, 10.0),
    Sketcher.Constraint("DistanceY", 0, 2, 0, 1, 210.0),
    Sketcher.Constraint("DistanceX", -1, 1, 0, 2, 110.0),
    Sketcher.Constraint("DistanceY", -1, 1, 0, 2, 10.0),
])
pad31 = body31.newObject("PartDesign::Pad", "Pad030")
pad31.Profile = sketch31
pad31.Length = 7
doc.recompute()

boolean = body31.newObject("PartDesign::Boolean", "Boolean")
boolean.Type = "Fuse"
boolean.addObjects([body25])
doc.recompute()

boolean2 = body31.newObject("PartDesign::Boolean", "Boolean001")
boolean2.Type = "Fuse"
boolean2.addObjects([body26])
doc.recompute()

boolean3 = body31.newObject("PartDesign::Boolean", "Boolean002")
boolean3.Type = "Fuse"
boolean3.addObjects([body27])
doc.recompute()

boolean4 = body31.newObject("PartDesign::Boolean", "Boolean003")
boolean4.Type = "Fuse"
boolean4.addObjects([body28])
doc.recompute()

boolean5 = body31.newObject("PartDesign::Boolean", "Boolean004")
boolean5.Type = "Fuse"
boolean5.addObjects([body29])
doc.recompute()

boolean6 = body31.newObject("PartDesign::Boolean", "Boolean005")
boolean6.Type = "Fuse"
boolean6.addObjects([body30])
doc.recompute()

boolean7 = body31.newObject("PartDesign::Boolean", "Boolean006")
boolean7.Type = "Cut"
boolean7.addObjects([body24])
doc.recompute()

boolean8 = body31.newObject("PartDesign::Boolean", "Boolean007")
boolean8.Type = "Fuse"
boolean8.addObjects([body23])
doc.recompute()

boolean9 = body31.newObject("PartDesign::Boolean", "Boolean008")
boolean9.Type = "Cut"
boolean9.addObjects([body22])
doc.recompute()

boolean10 = body31.newObject("PartDesign::Boolean", "Boolean009")
boolean10.Type = "Cut"
boolean10.addObjects([body21])
doc.recompute()

boolean11 = body31.newObject("PartDesign::Boolean", "Boolean010")
boolean11.Type = "Cut"
boolean11.addObjects([body20])
doc.recompute()

boolean12 = body31.newObject("PartDesign::Boolean", "Boolean011")
boolean12.Type = "Cut"
boolean12.addObjects([body19])
doc.recompute()

boolean13 = body31.newObject("PartDesign::Boolean", "Boolean012")
boolean13.Type = "Cut"
boolean13.addObjects([body18])
doc.recompute()

boolean14 = body31.newObject("PartDesign::Boolean", "Boolean013")
boolean14.Type = "Cut"
boolean14.addObjects([body17])
doc.recompute()

boolean15 = body31.newObject("PartDesign::Boolean", "Boolean014")
boolean15.Type = "Cut"
boolean15.addObjects([body16])
doc.recompute()

boolean16 = body31.newObject("PartDesign::Boolean", "Boolean015")
boolean16.Type = "Cut"
boolean16.addObjects([body15])
doc.recompute()

boolean17 = body31.newObject("PartDesign::Boolean", "Boolean016")
boolean17.Type = "Cut"
boolean17.addObjects([body14])
doc.recompute()

boolean18 = body31.newObject("PartDesign::Boolean", "Boolean017")
boolean18.Type = "Cut"
boolean18.addObjects([body13])
doc.recompute()

boolean19 = body31.newObject("PartDesign::Boolean", "Boolean018")
boolean19.Type = "Cut"
boolean19.addObjects([body12])
doc.recompute()

boolean20 = body31.newObject("PartDesign::Boolean", "Boolean019")
boolean20.Type = "Cut"
boolean20.addObjects([body11])
doc.recompute()

boolean21 = body31.newObject("PartDesign::Boolean", "Boolean020")
boolean21.Type = "Cut"
boolean21.addObjects([body10])
doc.recompute()

boolean22 = body31.newObject("PartDesign::Boolean", "Boolean021")
boolean22.Type = "Cut"
boolean22.addObjects([body9])
doc.recompute()

boolean23 = body31.newObject("PartDesign::Boolean", "Boolean022")
boolean23.Type = "Cut"
boolean23.addObjects([body8])
doc.recompute()

boolean24 = body31.newObject("PartDesign::Boolean", "Boolean023")
boolean24.Type = "Cut"
boolean24.addObjects([body7])
doc.recompute()

boolean25 = body31.newObject("PartDesign::Boolean", "Boolean024")
boolean25.Type = "Cut"
boolean25.addObjects([body6])
doc.recompute()

boolean26 = body31.newObject("PartDesign::Boolean", "Boolean025")
boolean26.Type = "Cut"
boolean26.addObjects([body5])
doc.recompute()

boolean27 = body31.newObject("PartDesign::Boolean", "Boolean026")
boolean27.Type = "Cut"
boolean27.addObjects([body4])
doc.recompute()

boolean28 = body31.newObject("PartDesign::Boolean", "Boolean027")
boolean28.Type = "Cut"
boolean28.addObjects([body3])
doc.recompute()

boolean29 = body31.newObject("PartDesign::Boolean", "Boolean028")
boolean29.Type = "Cut"
boolean29.addObjects([body2])
doc.recompute()

boolean30 = body31.newObject("PartDesign::Boolean", "Boolean029")
boolean30.Type = "Cut"
boolean30.addObjects([body])

doc.recompute()
